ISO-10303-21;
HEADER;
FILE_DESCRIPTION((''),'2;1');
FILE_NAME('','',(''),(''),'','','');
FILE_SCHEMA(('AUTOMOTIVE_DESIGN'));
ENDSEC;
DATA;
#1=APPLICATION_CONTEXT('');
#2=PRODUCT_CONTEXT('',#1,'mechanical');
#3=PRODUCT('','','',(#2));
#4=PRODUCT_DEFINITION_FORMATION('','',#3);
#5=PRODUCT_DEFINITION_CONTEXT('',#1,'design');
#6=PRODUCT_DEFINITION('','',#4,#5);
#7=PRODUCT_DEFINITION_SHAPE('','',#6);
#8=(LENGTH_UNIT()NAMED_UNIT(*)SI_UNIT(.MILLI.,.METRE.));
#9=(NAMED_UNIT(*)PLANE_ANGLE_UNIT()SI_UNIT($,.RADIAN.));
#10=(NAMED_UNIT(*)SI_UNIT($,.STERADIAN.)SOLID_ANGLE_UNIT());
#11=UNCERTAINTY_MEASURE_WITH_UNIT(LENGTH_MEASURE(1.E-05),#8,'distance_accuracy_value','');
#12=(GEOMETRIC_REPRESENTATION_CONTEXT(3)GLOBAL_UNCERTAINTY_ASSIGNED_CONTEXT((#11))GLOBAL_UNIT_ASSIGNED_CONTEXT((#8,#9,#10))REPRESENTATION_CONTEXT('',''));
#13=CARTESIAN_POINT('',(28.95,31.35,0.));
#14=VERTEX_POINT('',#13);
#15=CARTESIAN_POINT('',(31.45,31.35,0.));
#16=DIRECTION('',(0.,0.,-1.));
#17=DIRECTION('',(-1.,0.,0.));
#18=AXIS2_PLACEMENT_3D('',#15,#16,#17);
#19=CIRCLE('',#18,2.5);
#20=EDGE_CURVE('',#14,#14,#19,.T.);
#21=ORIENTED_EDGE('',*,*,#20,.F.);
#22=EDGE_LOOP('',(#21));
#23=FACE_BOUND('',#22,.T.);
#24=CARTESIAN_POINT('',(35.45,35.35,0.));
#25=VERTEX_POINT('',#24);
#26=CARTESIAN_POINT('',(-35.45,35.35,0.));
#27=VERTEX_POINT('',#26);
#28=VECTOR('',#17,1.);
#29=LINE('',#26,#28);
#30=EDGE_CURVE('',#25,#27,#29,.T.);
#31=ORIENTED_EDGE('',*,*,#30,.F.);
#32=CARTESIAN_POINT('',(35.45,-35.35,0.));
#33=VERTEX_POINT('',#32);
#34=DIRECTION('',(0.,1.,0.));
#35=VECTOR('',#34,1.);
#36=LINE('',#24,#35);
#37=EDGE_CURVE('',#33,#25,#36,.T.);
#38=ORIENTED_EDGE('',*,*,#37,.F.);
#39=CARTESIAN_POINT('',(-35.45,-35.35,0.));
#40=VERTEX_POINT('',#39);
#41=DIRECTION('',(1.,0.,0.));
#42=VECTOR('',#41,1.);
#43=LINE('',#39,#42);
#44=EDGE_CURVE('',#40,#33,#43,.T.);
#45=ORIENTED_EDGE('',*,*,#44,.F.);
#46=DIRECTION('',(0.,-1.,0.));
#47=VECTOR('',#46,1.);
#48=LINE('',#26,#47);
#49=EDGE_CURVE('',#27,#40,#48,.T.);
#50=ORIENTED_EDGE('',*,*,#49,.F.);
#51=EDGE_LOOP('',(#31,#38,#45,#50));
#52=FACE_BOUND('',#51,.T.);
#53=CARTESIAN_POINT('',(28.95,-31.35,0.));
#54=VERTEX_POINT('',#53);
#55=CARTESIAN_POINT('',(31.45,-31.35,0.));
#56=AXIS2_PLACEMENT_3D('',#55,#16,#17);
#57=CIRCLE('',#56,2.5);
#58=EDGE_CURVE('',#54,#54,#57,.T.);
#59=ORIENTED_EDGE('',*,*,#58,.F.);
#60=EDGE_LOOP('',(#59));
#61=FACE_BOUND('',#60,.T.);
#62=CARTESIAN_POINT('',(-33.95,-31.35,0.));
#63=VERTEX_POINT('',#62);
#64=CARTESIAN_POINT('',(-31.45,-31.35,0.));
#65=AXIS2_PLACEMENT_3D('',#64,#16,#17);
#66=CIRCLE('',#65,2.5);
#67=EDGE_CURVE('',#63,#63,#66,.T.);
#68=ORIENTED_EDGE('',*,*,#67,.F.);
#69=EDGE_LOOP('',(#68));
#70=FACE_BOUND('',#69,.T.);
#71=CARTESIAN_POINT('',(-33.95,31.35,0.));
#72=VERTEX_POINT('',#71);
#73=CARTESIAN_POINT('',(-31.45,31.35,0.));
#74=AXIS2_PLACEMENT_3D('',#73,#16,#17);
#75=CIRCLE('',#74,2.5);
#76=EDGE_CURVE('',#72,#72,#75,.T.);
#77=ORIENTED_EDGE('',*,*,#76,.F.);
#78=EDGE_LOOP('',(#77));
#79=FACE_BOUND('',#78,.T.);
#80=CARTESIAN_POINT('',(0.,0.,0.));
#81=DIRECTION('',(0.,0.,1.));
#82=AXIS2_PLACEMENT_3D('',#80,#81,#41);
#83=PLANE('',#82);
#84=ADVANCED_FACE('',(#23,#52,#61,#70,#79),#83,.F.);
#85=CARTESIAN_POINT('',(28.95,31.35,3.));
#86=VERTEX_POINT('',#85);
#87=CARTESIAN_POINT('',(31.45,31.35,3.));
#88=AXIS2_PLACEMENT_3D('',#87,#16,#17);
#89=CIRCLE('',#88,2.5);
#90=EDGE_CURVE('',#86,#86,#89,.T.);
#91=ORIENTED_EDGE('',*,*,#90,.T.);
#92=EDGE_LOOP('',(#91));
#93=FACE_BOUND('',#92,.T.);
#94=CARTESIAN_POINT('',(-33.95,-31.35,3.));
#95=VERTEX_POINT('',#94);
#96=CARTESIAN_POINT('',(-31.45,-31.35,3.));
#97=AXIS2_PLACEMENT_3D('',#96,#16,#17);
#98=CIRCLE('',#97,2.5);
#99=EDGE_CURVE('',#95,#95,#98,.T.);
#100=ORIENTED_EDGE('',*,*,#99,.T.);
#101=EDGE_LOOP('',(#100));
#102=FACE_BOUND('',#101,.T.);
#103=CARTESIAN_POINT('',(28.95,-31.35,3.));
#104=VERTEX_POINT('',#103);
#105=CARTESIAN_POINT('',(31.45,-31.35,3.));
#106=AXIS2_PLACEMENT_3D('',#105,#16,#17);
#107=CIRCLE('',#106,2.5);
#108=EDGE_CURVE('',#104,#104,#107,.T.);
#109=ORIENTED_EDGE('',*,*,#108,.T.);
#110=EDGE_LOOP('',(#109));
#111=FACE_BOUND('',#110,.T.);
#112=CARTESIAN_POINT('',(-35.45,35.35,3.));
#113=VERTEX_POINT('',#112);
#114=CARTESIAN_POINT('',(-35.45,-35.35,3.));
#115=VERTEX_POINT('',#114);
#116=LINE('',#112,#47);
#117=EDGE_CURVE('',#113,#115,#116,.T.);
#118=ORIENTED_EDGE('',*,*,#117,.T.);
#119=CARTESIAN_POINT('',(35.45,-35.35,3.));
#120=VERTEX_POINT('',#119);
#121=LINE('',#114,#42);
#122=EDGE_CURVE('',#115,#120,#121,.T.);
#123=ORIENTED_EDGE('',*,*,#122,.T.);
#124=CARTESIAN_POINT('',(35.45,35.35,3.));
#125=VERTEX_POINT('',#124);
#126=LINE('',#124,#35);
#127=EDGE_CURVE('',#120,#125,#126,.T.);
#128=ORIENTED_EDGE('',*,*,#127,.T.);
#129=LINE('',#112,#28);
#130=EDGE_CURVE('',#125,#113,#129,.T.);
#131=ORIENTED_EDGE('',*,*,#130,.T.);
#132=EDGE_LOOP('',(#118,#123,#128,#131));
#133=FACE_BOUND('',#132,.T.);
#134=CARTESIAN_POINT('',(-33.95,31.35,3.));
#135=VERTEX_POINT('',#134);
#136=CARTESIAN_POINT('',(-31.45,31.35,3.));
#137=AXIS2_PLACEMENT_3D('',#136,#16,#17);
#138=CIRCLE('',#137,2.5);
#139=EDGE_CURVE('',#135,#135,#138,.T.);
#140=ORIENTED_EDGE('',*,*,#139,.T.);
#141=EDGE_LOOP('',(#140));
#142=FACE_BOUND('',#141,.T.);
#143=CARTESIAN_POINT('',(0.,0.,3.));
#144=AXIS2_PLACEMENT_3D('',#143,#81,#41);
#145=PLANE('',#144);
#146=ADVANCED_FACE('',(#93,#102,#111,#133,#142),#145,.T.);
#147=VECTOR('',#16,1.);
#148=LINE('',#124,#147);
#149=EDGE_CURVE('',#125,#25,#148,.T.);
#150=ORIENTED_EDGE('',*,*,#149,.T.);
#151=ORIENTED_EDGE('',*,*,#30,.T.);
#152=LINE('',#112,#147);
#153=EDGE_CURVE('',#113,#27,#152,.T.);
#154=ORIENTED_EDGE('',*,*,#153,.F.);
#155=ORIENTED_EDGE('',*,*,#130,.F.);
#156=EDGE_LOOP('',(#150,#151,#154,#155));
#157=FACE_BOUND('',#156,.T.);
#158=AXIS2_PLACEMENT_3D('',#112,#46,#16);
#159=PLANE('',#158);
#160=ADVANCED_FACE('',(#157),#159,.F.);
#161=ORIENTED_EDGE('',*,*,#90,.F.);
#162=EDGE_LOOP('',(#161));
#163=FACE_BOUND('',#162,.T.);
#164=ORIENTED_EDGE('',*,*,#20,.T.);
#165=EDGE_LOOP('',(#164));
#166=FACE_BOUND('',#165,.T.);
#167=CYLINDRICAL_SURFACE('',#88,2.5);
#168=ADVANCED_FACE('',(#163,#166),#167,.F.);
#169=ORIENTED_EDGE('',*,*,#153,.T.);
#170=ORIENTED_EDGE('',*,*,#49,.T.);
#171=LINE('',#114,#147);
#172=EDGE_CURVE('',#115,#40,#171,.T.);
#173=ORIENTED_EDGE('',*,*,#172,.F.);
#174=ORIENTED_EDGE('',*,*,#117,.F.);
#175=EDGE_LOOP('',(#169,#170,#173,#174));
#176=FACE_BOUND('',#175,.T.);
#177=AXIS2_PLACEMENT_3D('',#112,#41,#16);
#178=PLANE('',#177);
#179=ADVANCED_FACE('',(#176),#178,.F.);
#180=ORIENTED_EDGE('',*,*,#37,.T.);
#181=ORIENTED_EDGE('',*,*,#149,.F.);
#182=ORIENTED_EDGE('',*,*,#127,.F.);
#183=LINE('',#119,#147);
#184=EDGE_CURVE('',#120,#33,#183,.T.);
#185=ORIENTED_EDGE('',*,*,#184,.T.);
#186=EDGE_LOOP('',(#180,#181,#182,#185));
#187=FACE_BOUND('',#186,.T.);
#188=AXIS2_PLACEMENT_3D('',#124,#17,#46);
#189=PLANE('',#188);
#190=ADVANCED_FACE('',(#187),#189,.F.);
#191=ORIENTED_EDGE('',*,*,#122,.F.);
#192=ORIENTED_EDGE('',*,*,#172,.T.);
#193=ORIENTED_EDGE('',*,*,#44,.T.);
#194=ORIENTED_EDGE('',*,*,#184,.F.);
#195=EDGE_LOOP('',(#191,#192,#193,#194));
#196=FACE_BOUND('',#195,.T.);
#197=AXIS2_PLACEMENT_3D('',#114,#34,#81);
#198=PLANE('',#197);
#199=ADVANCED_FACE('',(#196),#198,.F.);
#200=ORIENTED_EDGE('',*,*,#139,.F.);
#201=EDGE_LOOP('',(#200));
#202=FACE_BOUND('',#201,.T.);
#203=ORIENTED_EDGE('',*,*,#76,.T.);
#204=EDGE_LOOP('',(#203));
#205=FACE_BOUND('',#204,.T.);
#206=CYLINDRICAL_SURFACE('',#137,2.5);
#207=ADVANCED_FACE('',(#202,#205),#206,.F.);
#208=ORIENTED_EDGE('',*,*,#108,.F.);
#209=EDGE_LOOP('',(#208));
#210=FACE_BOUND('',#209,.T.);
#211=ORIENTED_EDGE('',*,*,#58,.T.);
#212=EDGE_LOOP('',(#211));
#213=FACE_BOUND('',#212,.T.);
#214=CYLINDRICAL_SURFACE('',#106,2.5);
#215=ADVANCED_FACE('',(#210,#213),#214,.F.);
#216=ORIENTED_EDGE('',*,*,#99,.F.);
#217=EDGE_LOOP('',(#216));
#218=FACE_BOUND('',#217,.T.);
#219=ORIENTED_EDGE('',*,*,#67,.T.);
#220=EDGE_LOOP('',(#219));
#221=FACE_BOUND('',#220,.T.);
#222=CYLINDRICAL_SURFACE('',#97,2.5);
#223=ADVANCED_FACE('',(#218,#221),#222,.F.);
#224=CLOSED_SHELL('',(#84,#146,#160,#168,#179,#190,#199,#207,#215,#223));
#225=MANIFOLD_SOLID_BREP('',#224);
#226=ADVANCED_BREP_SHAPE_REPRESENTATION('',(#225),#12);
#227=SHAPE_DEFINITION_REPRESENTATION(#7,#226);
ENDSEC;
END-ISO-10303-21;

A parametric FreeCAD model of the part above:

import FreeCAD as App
import Part
import Sketcher


def add_polygon(sketch, points):
    """Adds a closed chain of lines whose ends are joined by coincident constraints."""
    first, n = sketch.GeometryCount, len(points)
    for a, b in zip(points, points[1:] + points[:1]):
        sketch.addGeometry(Part.LineSegment(App.Vector(*a, 0), App.Vector(*b, 0)), False)
    for i in range(n):
        sketch.addConstraint(Sketcher.Constraint("Coincident", first + i, 2, first + (i + 1) % n, 1))

doc = App.newDocument("Part")
body = doc.addObject("PartDesign::Body", "Body")

# Sketch on XY plane
sketch1 = body.newObject("Sketcher::SketchObject", "Sketch")
sketch1.AttachmentSupport = (doc.getObject("XY_Plane"), [""])
sketch1.MapMode = "FlatFace"
add_polygon(sketch1, [(-35, 35), (-35, -35), (35, -35), (35, 35)])  # lines 0-3
sketch1.addConstraint(Sketcher.Constraint("Vertical", 0))
sketch1.addConstraint(Sketcher.Constraint("Horizontal", 1))
sketch1.addConstraint(Sketcher.Constraint("Vertical", 2))
sketch1.addConstraint(Sketcher.Constraint("Horizontal", 3))
sketch1.addConstraint(Sketcher.Constraint("Symmetric", 0, 2, 2, 2, -1, 1))
sketch1.addConstraint(Sketcher.Constraint("DistanceX", 1, 1, 1, 2, 70.9))
sketch1.addConstraint(Sketcher.Constraint("DistanceY", 0, 2, 0, 1, 70.7))
pad1 = body.newObject("PartDesign::Pad", "Pad")
pad1.Profile = sketch1
pad1.Length = 3

# Sketch on XY plane
sketch2 = body.newObject("Sketcher::SketchObject", "Sketch001")
sketch2.AttachmentSupport = (doc.getObject("XY_Plane"), [""])
sketch2.MapMode = "FlatFace"
sketch2.addGeometry(Part.Circle(App.Vector(31.4, 31.4, 0), App.Vector(0, 0, 1), 2.5), False)
sketch2.addGeometry(Part.Circle(App.Vector(31.4, -31.4, 0), App.Vector(0, 0, 1), 2.5), False)
sketch2.addGeometry(Part.Circle(App.Vector(-31.4, -31.4, 0), App.Vector(0, 0, 1), 2.5), False)
sketch2.addGeometry(Part.Circle(App.Vector(-31.4, 31.4, 0), App.Vector(0, 0, 1), 2.5), False)
sketch2.addConstraint(Sketcher.Constraint("Equal", 0, 1))
sketch2.addConstraint(Sketcher.Constraint("Equal", 1, 2))
sketch2.addConstraint(Sketcher.Constraint("Equal", 2, 3))
sketch2.addConstraint(Sketcher.Constraint("Symmetric", 0, 3, 2, 3, -1, 1))
sketch2.addConstraint(Sketcher.Constraint("Symmetric", 1, 3, 3, 3, -1, 1))
sketch2.addConstraint(Sketcher.Constraint("Symmetric", 1, 3, 2, 3, -2))
sketch2.addConstraint(Sketcher.Constraint("Diameter", 0, 5.0))
sketch2.addConstraint(Sketcher.Constraint("DistanceY", 1, 3, 0, 3, 62.7))
sketch2.addConstraint(Sketcher.Constraint("DistanceX", 2, 3, 1, 3, 62.9))
pocket1 = body.newObject("PartDesign::Pocket", "Pocket")
pocket1.Profile = sketch2
pocket1.Type = "ThroughAll"
pocket1.Reversed = True

doc.recompute()
